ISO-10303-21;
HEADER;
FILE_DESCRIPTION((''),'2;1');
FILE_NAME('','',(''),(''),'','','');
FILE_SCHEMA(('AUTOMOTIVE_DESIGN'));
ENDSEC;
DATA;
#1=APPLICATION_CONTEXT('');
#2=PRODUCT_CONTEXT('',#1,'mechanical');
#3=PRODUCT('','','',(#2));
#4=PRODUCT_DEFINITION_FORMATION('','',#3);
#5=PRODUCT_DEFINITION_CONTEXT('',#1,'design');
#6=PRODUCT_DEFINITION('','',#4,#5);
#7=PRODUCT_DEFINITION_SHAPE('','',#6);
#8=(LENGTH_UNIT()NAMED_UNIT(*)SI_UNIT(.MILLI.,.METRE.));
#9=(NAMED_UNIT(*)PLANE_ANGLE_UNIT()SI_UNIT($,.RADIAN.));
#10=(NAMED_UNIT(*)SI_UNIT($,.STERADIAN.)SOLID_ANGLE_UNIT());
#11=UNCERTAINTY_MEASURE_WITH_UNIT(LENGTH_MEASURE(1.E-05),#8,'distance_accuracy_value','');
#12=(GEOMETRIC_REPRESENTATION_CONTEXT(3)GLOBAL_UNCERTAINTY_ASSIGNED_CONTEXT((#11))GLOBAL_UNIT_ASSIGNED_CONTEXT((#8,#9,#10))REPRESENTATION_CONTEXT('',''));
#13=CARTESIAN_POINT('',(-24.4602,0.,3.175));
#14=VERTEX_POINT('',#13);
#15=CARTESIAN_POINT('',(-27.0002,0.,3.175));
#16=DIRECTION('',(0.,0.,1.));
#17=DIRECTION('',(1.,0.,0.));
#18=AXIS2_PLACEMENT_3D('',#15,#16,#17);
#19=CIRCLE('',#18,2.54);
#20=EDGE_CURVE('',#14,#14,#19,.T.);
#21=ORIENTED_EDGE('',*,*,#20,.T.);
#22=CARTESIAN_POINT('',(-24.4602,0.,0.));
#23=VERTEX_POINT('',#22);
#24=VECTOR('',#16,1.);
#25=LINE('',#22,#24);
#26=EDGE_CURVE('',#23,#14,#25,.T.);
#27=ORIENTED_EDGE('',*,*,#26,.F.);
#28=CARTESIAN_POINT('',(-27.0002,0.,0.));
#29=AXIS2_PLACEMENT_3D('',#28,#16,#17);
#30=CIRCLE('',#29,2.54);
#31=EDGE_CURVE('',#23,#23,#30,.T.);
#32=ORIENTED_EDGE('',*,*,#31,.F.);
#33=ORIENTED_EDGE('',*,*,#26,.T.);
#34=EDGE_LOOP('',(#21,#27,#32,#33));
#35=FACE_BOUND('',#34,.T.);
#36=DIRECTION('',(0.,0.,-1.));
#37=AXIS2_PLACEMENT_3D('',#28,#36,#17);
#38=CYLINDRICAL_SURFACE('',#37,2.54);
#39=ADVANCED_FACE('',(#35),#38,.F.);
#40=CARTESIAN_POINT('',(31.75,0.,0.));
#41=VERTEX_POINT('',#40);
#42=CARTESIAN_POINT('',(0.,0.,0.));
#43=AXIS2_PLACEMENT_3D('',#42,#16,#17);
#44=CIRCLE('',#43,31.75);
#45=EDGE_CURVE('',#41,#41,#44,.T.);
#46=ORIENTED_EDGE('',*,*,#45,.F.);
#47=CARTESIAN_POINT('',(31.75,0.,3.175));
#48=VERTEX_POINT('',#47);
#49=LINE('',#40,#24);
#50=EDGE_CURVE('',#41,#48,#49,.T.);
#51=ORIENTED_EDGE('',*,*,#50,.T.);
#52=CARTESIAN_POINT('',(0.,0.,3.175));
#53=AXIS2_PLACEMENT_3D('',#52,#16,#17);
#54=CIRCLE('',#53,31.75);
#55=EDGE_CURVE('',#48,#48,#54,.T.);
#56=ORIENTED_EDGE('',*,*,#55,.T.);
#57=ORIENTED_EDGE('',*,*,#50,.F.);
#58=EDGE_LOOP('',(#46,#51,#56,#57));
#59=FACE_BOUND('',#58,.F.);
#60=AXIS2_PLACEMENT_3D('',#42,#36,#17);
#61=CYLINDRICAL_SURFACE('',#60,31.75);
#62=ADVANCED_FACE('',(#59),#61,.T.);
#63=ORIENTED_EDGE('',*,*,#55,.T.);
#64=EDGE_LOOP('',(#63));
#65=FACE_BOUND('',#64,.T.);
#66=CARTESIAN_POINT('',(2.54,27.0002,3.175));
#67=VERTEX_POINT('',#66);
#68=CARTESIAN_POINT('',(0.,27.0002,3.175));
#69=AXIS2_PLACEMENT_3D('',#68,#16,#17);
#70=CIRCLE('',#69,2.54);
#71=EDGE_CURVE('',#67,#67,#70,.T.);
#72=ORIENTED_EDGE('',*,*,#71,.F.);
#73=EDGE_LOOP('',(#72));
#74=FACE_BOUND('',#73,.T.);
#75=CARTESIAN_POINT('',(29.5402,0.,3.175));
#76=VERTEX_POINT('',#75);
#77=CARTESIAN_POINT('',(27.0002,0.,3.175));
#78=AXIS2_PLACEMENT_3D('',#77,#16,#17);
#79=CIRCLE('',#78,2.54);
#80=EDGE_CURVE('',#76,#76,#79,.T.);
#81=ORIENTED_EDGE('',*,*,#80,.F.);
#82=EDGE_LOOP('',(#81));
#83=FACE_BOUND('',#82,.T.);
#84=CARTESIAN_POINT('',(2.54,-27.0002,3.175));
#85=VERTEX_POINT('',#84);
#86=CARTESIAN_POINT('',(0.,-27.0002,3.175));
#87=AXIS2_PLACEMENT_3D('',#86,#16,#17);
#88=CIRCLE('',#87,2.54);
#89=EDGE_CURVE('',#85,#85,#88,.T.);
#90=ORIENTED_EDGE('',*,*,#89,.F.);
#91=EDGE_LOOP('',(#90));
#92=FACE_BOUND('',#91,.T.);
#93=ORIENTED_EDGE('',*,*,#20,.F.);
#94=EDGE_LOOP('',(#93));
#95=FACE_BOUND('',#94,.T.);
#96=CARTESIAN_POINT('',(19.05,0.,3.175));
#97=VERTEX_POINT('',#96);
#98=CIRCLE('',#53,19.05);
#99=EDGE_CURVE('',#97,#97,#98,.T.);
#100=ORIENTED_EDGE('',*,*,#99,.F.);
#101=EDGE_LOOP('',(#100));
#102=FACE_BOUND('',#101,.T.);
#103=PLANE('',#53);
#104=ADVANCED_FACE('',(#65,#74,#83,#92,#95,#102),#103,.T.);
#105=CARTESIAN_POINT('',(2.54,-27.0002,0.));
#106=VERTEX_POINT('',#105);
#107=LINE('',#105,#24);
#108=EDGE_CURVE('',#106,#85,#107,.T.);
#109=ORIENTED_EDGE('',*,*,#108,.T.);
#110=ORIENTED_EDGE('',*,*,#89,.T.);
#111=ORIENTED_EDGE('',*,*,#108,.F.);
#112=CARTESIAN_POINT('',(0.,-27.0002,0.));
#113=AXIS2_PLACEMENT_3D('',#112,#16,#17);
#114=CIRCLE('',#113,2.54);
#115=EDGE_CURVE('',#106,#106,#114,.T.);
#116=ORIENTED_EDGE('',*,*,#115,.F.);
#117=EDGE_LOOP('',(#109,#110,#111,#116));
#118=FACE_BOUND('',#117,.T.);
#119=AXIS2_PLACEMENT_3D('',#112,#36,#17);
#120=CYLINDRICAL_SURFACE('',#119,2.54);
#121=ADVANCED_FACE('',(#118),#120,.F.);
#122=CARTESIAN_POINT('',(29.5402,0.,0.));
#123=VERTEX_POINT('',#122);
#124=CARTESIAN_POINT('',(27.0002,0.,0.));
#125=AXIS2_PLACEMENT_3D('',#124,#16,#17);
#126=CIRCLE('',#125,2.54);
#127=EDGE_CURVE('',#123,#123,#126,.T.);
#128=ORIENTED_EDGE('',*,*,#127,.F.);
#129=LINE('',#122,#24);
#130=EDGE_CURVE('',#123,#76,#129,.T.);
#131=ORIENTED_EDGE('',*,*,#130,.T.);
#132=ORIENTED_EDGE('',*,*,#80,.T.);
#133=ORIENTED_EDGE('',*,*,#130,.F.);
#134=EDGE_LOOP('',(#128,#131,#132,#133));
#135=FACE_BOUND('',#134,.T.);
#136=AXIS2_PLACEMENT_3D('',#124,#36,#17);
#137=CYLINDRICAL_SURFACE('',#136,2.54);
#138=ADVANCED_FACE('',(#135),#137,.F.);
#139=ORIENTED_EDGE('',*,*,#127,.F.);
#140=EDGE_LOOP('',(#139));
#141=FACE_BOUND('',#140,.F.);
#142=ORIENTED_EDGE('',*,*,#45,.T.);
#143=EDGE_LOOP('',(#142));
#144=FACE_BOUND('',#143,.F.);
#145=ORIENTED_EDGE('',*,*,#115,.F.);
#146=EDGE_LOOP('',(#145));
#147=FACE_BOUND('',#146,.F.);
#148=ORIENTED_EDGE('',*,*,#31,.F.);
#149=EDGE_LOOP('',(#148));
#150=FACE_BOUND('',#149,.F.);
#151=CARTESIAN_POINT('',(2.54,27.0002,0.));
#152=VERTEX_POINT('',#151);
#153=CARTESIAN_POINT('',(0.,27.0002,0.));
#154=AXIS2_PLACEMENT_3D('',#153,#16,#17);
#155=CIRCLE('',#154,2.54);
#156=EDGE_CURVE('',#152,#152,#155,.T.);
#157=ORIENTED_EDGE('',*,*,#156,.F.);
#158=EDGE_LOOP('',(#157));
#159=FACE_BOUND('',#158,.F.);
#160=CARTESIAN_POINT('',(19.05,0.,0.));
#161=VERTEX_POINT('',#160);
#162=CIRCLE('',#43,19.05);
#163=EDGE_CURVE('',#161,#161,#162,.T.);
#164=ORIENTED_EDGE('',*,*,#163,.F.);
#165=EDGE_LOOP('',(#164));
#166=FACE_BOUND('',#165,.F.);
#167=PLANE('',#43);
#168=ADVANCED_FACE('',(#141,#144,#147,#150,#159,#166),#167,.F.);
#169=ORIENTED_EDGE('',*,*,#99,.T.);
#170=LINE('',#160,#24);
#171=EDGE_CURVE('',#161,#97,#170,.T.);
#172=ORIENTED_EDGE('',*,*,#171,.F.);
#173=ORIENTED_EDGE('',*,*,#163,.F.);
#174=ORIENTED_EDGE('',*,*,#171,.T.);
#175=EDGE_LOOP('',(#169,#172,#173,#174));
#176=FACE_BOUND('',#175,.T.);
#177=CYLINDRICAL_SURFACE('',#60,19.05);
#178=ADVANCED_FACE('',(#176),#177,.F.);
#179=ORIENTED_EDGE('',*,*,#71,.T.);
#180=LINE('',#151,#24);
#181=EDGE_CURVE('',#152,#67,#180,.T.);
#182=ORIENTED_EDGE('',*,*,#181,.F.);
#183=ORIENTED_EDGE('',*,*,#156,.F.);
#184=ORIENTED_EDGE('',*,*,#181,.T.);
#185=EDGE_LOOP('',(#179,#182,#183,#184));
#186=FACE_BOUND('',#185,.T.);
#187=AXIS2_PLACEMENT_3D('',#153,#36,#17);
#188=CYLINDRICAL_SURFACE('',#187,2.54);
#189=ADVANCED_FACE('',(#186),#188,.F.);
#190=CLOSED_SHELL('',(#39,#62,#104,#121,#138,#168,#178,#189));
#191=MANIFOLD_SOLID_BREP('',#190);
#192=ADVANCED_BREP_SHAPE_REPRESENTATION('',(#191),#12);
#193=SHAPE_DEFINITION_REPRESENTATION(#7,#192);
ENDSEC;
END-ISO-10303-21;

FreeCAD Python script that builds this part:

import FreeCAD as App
import Part
import Sketcher

V = App.Vector
Q = App.Units.Quantity

doc = App.newDocument("Part")
body = doc.addObject("PartDesign::Body", "Body")

sketch1 = doc.addObject("Sketcher::SketchObject", "Sketch")
body.addObject(sketch1)
sketch1.AttachmentSupport = (doc.XY_Plane, [""])
sketch1.MapMode = "FlatFace"
sketch1.addGeometry(Part.Circle(V(0, 0, 0), V(0, 0, 1), 31.8), False)
sketch1.addGeometry(Part.Circle(V(0, -27, 0), V(0, 0, 1), 2.5), False)
sketch1.addGeometry(Part.Circle(V(-27, 0, 0), V(0, 0, 1), 2.5), False)
sketch1.addGeometry(Part.Circle(V(0, 0, 0), V(0, 0, 1), 19.1), False)
sketch1.addGeometry(Part.Circle(V(27, 0, 0), V(0, 0, 1), 2.5), False)
sketch1.addGeometry(Part.Circle(V(0, 27, 0), V(0, 0, 1), 2.5), False)
sketch1.addConstraint(Sketcher.Constraint("Coincident", 0, 3, -1, 1))
sketch1.addConstraint(Sketcher.Constraint("Coincident", 3, 3, -1, 1))
sketch1.addConstraint(Sketcher.Constraint("Equal", 1, 2))
sketch1.addConstraint(Sketcher.Constraint("Equal", 2, 4))
sketch1.addConstraint(Sketcher.Constraint("Equal", 4, 5))
sketch1.addConstraint(Sketcher.Constraint("Symmetric", 2, 3, 4, 3, -1, 1))
sketch1.addConstraint(Sketcher.Constraint("Symmetric", 1, 3, 5, 3, -1, 1))
sketch1.addConstraint(Sketcher.Constraint("PointOnObject", 1, 3, -2))
sketch1.addConstraint(Sketcher.Constraint("PointOnObject", 2, 3, -1))
sketch1.addConstraint(Sketcher.Constraint("Diameter", 0, Q("2.5 in")))
sketch1.addConstraint(Sketcher.Constraint("Diameter", 1, Q("0.2 in")))
sketch1.addConstraint(Sketcher.Constraint("Diameter", 3, Q("1.5 in")))
sketch1.addConstraint(Sketcher.Constraint("DistanceY", 1, 3, -1, 1, Q("1.063 in")))
sketch1.addConstraint(Sketcher.Constraint("DistanceX", 2, 3, -1, 1, Q("1.063 in")))
pad1 = doc.addObject("PartDesign::Pad", "Pad")
body.addObject(pad1)
pad1.Profile = sketch1
pad1.Length = Q("0.125 in")

doc.recompute()
